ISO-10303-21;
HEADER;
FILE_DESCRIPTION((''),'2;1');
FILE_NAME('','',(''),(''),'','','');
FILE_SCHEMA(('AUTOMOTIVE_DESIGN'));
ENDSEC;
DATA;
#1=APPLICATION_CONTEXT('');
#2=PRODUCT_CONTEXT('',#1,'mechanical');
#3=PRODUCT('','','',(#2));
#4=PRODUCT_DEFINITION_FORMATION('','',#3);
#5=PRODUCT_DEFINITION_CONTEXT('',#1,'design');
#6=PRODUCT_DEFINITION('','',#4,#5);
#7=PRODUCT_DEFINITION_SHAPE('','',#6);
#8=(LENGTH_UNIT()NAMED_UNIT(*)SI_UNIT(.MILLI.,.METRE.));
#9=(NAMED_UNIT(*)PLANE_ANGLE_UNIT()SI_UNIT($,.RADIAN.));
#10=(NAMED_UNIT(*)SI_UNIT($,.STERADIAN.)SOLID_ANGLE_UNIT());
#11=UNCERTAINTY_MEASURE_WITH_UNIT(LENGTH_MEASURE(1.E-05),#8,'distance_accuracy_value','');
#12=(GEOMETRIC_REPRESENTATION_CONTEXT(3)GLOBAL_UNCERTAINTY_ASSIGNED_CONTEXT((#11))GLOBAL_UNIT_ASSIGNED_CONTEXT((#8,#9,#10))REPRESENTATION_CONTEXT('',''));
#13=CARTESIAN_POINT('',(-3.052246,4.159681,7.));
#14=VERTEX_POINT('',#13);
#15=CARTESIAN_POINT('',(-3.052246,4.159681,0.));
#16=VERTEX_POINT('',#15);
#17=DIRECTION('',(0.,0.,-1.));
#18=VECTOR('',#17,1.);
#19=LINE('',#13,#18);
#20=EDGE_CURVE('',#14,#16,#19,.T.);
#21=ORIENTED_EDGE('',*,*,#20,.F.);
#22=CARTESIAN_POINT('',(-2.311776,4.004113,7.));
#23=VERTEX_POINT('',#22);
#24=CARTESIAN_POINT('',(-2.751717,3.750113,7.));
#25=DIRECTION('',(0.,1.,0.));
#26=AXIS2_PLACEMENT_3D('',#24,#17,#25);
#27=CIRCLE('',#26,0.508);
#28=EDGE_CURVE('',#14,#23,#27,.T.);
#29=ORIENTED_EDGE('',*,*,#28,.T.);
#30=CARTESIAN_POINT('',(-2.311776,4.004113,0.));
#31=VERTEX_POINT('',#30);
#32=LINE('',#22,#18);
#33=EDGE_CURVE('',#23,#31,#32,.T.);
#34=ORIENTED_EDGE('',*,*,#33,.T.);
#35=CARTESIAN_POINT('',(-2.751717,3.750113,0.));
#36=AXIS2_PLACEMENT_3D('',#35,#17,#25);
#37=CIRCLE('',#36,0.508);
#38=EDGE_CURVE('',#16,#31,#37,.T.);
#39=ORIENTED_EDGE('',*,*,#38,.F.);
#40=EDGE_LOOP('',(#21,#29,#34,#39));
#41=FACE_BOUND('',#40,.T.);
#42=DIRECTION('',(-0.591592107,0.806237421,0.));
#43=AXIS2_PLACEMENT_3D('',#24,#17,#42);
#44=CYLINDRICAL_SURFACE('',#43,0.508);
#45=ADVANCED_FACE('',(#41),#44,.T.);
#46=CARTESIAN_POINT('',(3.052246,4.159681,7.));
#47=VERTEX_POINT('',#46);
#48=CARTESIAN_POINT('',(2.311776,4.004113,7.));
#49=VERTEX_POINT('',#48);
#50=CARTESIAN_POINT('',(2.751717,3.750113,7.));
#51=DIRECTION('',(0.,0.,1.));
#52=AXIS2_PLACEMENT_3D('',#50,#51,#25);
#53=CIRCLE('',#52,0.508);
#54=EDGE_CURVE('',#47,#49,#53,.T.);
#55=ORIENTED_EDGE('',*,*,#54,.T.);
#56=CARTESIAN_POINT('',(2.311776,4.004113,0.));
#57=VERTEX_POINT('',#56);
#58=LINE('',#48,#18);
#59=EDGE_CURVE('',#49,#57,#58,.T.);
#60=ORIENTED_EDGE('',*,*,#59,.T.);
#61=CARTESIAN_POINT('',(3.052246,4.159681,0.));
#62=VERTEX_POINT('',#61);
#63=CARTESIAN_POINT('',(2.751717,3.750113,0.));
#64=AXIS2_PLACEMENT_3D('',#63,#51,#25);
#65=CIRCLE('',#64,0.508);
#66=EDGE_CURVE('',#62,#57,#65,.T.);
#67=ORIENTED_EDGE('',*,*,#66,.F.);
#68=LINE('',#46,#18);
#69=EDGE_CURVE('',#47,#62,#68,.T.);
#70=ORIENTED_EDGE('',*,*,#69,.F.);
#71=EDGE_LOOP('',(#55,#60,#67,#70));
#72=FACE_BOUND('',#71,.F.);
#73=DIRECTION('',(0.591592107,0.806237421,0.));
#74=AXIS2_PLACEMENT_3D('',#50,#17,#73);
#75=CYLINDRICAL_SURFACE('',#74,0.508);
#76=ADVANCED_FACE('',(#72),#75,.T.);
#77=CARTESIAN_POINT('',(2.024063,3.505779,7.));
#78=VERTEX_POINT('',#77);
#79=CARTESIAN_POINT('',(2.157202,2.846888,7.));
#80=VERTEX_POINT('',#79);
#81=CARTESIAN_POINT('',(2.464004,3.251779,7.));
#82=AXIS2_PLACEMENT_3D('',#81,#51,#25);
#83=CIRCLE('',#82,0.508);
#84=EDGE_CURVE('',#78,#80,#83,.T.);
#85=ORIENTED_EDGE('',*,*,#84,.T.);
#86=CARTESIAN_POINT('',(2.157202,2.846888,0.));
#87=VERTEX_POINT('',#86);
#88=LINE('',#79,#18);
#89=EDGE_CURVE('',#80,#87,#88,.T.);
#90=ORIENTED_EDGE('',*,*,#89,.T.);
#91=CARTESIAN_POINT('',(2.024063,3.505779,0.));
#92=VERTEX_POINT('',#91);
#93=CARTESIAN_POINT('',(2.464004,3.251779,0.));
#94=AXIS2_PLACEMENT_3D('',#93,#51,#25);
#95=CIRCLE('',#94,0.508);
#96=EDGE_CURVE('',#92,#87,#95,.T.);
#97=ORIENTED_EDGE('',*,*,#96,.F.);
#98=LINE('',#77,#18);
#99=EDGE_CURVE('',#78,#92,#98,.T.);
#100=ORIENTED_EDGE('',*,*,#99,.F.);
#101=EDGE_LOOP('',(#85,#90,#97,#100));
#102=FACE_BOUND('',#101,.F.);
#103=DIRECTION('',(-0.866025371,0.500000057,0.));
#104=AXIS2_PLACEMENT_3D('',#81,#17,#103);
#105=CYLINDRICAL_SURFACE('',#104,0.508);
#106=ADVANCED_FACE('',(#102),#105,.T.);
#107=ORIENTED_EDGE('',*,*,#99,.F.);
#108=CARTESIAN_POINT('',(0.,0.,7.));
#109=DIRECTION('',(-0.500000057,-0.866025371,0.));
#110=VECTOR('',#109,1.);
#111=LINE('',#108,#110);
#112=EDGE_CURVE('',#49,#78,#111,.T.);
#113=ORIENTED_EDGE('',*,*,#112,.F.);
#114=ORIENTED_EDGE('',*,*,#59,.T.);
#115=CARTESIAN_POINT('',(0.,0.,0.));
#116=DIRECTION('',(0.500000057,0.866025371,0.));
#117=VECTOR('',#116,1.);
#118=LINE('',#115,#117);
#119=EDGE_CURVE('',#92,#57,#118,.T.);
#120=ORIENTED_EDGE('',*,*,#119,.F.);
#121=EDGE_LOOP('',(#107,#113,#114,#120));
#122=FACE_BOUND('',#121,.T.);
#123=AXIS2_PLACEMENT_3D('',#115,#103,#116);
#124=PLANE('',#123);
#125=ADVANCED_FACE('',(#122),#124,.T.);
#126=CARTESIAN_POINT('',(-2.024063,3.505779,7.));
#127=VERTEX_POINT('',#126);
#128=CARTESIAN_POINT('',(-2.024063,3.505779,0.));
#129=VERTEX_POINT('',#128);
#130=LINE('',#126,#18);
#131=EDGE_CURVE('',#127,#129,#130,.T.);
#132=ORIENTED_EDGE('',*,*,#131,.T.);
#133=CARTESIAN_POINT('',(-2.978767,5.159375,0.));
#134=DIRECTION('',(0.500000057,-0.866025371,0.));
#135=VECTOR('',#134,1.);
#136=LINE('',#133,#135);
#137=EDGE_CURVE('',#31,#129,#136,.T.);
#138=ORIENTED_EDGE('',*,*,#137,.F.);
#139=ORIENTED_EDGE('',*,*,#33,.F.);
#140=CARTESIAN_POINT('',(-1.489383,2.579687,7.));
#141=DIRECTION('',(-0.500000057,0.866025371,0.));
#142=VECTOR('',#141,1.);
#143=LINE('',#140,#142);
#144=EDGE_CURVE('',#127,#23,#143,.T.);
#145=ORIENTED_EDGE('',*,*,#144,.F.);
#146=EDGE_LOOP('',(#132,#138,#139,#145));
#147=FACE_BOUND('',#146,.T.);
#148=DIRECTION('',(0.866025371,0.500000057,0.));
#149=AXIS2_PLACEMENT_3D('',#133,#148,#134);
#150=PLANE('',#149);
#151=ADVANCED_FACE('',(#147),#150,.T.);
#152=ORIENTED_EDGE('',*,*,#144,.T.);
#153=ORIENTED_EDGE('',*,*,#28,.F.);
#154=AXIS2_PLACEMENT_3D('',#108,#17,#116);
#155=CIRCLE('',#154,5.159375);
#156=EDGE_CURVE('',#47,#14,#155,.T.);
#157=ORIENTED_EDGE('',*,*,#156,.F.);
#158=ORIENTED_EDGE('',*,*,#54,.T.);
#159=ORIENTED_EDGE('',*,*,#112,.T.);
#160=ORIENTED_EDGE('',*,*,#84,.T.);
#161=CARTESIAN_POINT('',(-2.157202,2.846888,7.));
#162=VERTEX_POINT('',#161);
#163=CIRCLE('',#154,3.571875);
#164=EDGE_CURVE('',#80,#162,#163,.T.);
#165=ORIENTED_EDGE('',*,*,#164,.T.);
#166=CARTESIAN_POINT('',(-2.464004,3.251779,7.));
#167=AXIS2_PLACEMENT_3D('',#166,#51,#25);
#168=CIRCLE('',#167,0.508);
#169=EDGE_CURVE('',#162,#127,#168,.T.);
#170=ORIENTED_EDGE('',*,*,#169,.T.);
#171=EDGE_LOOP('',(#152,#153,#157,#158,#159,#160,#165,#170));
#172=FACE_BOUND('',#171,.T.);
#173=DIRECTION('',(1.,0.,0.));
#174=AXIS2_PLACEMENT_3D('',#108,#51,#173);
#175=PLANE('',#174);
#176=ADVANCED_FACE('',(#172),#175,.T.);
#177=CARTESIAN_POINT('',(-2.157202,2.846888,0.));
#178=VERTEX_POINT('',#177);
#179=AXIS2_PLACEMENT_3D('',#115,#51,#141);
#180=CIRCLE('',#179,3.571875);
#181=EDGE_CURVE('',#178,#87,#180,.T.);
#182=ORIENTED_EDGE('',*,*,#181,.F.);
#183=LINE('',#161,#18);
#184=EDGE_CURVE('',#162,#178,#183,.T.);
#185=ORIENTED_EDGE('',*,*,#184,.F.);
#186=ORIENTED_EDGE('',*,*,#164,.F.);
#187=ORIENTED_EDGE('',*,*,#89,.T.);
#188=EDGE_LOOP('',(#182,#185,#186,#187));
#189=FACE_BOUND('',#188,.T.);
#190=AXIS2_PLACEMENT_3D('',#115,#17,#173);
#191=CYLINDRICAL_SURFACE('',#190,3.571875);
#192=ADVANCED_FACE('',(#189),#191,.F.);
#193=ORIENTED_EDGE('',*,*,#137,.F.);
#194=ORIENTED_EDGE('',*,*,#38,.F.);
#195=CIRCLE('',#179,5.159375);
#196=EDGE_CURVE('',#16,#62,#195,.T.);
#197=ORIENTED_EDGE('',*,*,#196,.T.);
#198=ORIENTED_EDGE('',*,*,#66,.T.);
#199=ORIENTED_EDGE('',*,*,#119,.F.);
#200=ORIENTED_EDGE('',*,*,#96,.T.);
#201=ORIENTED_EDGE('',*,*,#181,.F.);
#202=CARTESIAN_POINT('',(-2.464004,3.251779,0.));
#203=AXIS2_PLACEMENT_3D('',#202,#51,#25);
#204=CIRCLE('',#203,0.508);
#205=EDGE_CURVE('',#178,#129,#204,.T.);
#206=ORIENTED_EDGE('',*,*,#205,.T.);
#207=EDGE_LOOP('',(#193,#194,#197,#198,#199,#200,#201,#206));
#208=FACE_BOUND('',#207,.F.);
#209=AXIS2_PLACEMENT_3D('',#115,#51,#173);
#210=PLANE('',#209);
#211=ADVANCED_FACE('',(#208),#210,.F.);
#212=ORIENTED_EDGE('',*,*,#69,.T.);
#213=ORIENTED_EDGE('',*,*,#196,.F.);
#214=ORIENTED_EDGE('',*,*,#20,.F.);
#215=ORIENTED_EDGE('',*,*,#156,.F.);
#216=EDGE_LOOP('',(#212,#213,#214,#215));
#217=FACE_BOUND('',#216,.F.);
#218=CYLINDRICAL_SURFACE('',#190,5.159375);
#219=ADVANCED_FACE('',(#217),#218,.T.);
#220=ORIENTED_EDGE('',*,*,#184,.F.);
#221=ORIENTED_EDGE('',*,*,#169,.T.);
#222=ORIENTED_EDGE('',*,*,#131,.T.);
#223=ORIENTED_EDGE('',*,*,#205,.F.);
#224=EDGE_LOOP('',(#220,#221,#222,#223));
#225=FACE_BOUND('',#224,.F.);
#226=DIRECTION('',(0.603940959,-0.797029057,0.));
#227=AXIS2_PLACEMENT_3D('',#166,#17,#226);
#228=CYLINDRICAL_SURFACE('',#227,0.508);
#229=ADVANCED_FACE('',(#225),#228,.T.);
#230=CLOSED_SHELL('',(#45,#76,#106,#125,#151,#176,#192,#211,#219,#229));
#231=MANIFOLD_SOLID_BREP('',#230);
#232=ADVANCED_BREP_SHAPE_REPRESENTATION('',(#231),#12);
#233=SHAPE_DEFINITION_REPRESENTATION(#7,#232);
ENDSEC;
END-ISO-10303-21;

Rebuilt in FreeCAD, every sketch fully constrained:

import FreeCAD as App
import Part
import Sketcher

V = App.Vector
Q = App.Units.Quantity


def edges_at(feature, points):
    """Names of the edges that pass closest to the given points."""
    edges = feature.Shape.Edges
    near = lambda p: min(range(len(edges)), key=lambda i: edges[i].distToShape(Part.Vertex(*p))[0])
    return sorted({f"Edge{near(p) + 1}" for p in points})

doc = App.newDocument("Part")
body = doc.addObject("PartDesign::Body", "Body")

sketch1 = body.newObject("Sketcher::SketchObject", "Sketch")
sketch1.AttachmentSupport = (doc.getObject("XY_Plane"), [""])
sketch1.MapMode = "FlatFace"
sketch1.addGeometry([
    Part.Circle(V(0, 0, 0), V(0, 0, 1), 5.2),
    Part.Circle(V(0, 0, 0), V(0, 0, 1), 3.6),
], False)
sketch1.addConstraint([
    Sketcher.Constraint("Coincident", 0, 3, -1, 1),
    Sketcher.Constraint("Coincident", 1, 3, -1, 1),
    Sketcher.Constraint("Diameter", 0, Q("0.40625 in")),
    Sketcher.Constraint("Diameter", 1, Q("0.28125 in")),
])
pad1 = body.newObject("PartDesign::Pad", "Pad")
pad1.Profile = sketch1
pad1.Length = 7

sketch2 = body.newObject("Sketcher::SketchObject", "Sketch001")
sketch2.AttachmentSupport = (doc.getObject("XY_Plane"), [""])
sketch2.MapMode = "FlatFace"
sketch2.addGeometry([
    Part.LineSegment(V(-3, 5, 0), V(0, 0, 0)),
    Part.LineSegment(V(0, 0, 0), V(3, 5, 0)),
    Part.LineSegment(V(3, 5, 0), V(-3, 5, 0)),
], False)
sketch2.addConstraint([
    Sketcher.Constraint("Coincident", 0, 2, 1, 1),
    Sketcher.Constraint("Coincident", 1, 2, 2, 1),
    Sketcher.Constraint("Coincident", 2, 2, 0, 1),
    Sketcher.Constraint("Horizontal", 2),
    Sketcher.Constraint("Coincident", 0, 2, -1, 1),
    Sketcher.Constraint("Equal", 0, 1),
    Sketcher.Constraint("Angle", 0, Q("-59.999996 deg")),
    Sketcher.Constraint("DistanceY", -1, 1, 1, 2, Q("0.203125 in")),
])
pocket1 = body.newObject("PartDesign::Pocket", "Pocket")
pocket1.Profile = sketch2
pocket1.Type = "ThroughAll"
pocket1.Reversed = True
doc.recompute()

fillet = body.newObject("PartDesign::Fillet", "Fillet")
fillet.Base = (pocket1, edges_at(pocket1, [
    (1.786, 3.093, 3.5),
    (-1.786, 3.093, 3.5),
    (-2.58, 4.468, 3.5),
    (2.58, 4.468, 3.5),
]))
fillet.Radius = Q("0.02 in")

doc.recompute()
